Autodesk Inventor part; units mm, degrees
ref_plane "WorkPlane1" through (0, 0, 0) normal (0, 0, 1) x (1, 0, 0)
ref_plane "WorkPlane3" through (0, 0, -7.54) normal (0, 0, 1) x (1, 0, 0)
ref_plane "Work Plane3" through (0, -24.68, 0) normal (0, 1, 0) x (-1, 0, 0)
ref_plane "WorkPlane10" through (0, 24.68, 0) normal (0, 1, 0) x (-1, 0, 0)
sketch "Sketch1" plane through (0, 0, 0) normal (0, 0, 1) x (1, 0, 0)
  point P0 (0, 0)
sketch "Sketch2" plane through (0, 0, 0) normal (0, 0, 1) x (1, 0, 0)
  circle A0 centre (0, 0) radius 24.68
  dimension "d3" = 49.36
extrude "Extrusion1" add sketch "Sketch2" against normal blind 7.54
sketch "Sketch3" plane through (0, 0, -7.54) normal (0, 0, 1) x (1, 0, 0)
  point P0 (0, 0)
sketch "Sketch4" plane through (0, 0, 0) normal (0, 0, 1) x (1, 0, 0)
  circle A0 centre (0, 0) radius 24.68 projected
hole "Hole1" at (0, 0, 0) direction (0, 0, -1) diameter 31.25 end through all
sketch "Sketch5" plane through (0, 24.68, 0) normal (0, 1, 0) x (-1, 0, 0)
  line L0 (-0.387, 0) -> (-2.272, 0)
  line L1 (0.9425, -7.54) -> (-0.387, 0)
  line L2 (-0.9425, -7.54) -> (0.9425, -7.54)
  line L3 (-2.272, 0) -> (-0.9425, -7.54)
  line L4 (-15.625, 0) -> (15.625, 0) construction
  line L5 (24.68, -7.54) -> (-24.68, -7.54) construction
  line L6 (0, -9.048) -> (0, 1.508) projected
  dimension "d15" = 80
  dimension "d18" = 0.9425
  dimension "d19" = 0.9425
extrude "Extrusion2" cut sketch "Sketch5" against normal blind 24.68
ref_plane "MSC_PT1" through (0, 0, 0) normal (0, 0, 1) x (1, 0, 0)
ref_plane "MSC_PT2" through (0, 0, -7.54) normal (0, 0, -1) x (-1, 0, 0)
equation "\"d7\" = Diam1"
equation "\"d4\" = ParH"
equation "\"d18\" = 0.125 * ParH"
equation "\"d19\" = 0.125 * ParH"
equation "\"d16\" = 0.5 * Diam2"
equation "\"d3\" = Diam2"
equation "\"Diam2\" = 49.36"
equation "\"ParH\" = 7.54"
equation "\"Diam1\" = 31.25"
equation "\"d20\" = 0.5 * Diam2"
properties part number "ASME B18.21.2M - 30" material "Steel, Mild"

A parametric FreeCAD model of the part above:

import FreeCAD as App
import Part
import Sketcher
from FreeCAD import Vector
Q = App.Units.Quantity

doc = App.newDocument("Part")
body = doc.addObject("PartDesign::Body", "Body")

sketch1 = body.newObject("Sketcher::SketchObject", "Sketch")
sketch1.AttachmentSupport = (doc.getObject("XY_Plane"), [""])
sketch1.MapMode = "FlatFace"
sketch1.addGeometry(Part.Circle(Vector(0, 0, 0), Vector(0, 0, 1), 25), False)
sketch1.addConstraint([
    Sketcher.Constraint("Coincident", 0, 3, -1, 1),
    Sketcher.Constraint("Diameter", 0, 49.36),
])
pad1 = body.newObject("PartDesign::Pad", "Pad")
pad1.Profile = sketch1
pad1.Length = 7.54
pad1.Reversed = True

sketch2 = body.newObject("Sketcher::SketchObject", "Sketch001")
sketch2.AttachmentSupport = (doc.getObject("XY_Plane"), [""])
sketch2.MapMode = "FlatFace"
sketch2.addGeometry(Part.Circle(Vector(0, 0, 0), Vector(0, 0, 1), 16), False)
sketch2.addConstraint([
    Sketcher.Constraint("Coincident", 0, 3, -1, 1),
    Sketcher.Constraint("Diameter", 0, 31.25),
])
doc.recompute()
hole = body.newObject("PartDesign::Hole", "Hole")
hole.Profile = sketch2
hole.ThreadType = "None"
hole.Diameter = 31.25
hole.DepthType = "ThroughAll"

sketch3 = body.newObject("Sketcher::SketchObject", "Sketch002")
sketch3.AttachmentSupport = (doc.getObject("XZ_Plane"), [""])
sketch3.MapMode = "FlatFace"
sketch3.AttachmentOffset = App.Placement(Vector(0, 0, -24.68), App.Rotation())
sketch3.addGeometry([
    Part.LineSegment(Vector(0.4, 0, 0), Vector(2.3, 0, 0)),
    Part.LineSegment(Vector(2.3, 0, 0), Vector(0.9, -7.5, 0)),
    Part.LineSegment(Vector(0.9, -7.5, 0), Vector(-0.9, -7.5, 0)),
    Part.LineSegment(Vector(-0.9, -7.5, 0), Vector(0.4, 0, 0)),
], False)
sketch3.addConstraint([
    Sketcher.Constraint("Coincident", 0, 2, 1, 1),
    Sketcher.Constraint("Coincident", 1, 2, 2, 1),
    Sketcher.Constraint("Coincident", 2, 2, 3, 1),
    Sketcher.Constraint("Coincident", 3, 2, 0, 1),
    Sketcher.Constraint("Horizontal", 0),
    Sketcher.Constraint("Horizontal", 2),
    Sketcher.Constraint("PointOnObject", 0, 2, -1),
    Sketcher.Constraint("Parallel", 1, 3),
    Sketcher.Constraint("Angle", 3, Q("80 deg")),
    Sketcher.Constraint("DistanceX", -1, 1, 1, 2, 0.9425),
    Sketcher.Constraint("DistanceX", 2, 2, -1, 1, 0.9425),
    Sketcher.Constraint("DistanceY", 1, 2, -1, 1, 7.54),
])
pocket1 = body.newObject("PartDesign::Pocket", "Pocket")
pocket1.Profile = sketch3
pocket1.Length = 24.68
pocket1.Reversed = True

doc.recompute()
